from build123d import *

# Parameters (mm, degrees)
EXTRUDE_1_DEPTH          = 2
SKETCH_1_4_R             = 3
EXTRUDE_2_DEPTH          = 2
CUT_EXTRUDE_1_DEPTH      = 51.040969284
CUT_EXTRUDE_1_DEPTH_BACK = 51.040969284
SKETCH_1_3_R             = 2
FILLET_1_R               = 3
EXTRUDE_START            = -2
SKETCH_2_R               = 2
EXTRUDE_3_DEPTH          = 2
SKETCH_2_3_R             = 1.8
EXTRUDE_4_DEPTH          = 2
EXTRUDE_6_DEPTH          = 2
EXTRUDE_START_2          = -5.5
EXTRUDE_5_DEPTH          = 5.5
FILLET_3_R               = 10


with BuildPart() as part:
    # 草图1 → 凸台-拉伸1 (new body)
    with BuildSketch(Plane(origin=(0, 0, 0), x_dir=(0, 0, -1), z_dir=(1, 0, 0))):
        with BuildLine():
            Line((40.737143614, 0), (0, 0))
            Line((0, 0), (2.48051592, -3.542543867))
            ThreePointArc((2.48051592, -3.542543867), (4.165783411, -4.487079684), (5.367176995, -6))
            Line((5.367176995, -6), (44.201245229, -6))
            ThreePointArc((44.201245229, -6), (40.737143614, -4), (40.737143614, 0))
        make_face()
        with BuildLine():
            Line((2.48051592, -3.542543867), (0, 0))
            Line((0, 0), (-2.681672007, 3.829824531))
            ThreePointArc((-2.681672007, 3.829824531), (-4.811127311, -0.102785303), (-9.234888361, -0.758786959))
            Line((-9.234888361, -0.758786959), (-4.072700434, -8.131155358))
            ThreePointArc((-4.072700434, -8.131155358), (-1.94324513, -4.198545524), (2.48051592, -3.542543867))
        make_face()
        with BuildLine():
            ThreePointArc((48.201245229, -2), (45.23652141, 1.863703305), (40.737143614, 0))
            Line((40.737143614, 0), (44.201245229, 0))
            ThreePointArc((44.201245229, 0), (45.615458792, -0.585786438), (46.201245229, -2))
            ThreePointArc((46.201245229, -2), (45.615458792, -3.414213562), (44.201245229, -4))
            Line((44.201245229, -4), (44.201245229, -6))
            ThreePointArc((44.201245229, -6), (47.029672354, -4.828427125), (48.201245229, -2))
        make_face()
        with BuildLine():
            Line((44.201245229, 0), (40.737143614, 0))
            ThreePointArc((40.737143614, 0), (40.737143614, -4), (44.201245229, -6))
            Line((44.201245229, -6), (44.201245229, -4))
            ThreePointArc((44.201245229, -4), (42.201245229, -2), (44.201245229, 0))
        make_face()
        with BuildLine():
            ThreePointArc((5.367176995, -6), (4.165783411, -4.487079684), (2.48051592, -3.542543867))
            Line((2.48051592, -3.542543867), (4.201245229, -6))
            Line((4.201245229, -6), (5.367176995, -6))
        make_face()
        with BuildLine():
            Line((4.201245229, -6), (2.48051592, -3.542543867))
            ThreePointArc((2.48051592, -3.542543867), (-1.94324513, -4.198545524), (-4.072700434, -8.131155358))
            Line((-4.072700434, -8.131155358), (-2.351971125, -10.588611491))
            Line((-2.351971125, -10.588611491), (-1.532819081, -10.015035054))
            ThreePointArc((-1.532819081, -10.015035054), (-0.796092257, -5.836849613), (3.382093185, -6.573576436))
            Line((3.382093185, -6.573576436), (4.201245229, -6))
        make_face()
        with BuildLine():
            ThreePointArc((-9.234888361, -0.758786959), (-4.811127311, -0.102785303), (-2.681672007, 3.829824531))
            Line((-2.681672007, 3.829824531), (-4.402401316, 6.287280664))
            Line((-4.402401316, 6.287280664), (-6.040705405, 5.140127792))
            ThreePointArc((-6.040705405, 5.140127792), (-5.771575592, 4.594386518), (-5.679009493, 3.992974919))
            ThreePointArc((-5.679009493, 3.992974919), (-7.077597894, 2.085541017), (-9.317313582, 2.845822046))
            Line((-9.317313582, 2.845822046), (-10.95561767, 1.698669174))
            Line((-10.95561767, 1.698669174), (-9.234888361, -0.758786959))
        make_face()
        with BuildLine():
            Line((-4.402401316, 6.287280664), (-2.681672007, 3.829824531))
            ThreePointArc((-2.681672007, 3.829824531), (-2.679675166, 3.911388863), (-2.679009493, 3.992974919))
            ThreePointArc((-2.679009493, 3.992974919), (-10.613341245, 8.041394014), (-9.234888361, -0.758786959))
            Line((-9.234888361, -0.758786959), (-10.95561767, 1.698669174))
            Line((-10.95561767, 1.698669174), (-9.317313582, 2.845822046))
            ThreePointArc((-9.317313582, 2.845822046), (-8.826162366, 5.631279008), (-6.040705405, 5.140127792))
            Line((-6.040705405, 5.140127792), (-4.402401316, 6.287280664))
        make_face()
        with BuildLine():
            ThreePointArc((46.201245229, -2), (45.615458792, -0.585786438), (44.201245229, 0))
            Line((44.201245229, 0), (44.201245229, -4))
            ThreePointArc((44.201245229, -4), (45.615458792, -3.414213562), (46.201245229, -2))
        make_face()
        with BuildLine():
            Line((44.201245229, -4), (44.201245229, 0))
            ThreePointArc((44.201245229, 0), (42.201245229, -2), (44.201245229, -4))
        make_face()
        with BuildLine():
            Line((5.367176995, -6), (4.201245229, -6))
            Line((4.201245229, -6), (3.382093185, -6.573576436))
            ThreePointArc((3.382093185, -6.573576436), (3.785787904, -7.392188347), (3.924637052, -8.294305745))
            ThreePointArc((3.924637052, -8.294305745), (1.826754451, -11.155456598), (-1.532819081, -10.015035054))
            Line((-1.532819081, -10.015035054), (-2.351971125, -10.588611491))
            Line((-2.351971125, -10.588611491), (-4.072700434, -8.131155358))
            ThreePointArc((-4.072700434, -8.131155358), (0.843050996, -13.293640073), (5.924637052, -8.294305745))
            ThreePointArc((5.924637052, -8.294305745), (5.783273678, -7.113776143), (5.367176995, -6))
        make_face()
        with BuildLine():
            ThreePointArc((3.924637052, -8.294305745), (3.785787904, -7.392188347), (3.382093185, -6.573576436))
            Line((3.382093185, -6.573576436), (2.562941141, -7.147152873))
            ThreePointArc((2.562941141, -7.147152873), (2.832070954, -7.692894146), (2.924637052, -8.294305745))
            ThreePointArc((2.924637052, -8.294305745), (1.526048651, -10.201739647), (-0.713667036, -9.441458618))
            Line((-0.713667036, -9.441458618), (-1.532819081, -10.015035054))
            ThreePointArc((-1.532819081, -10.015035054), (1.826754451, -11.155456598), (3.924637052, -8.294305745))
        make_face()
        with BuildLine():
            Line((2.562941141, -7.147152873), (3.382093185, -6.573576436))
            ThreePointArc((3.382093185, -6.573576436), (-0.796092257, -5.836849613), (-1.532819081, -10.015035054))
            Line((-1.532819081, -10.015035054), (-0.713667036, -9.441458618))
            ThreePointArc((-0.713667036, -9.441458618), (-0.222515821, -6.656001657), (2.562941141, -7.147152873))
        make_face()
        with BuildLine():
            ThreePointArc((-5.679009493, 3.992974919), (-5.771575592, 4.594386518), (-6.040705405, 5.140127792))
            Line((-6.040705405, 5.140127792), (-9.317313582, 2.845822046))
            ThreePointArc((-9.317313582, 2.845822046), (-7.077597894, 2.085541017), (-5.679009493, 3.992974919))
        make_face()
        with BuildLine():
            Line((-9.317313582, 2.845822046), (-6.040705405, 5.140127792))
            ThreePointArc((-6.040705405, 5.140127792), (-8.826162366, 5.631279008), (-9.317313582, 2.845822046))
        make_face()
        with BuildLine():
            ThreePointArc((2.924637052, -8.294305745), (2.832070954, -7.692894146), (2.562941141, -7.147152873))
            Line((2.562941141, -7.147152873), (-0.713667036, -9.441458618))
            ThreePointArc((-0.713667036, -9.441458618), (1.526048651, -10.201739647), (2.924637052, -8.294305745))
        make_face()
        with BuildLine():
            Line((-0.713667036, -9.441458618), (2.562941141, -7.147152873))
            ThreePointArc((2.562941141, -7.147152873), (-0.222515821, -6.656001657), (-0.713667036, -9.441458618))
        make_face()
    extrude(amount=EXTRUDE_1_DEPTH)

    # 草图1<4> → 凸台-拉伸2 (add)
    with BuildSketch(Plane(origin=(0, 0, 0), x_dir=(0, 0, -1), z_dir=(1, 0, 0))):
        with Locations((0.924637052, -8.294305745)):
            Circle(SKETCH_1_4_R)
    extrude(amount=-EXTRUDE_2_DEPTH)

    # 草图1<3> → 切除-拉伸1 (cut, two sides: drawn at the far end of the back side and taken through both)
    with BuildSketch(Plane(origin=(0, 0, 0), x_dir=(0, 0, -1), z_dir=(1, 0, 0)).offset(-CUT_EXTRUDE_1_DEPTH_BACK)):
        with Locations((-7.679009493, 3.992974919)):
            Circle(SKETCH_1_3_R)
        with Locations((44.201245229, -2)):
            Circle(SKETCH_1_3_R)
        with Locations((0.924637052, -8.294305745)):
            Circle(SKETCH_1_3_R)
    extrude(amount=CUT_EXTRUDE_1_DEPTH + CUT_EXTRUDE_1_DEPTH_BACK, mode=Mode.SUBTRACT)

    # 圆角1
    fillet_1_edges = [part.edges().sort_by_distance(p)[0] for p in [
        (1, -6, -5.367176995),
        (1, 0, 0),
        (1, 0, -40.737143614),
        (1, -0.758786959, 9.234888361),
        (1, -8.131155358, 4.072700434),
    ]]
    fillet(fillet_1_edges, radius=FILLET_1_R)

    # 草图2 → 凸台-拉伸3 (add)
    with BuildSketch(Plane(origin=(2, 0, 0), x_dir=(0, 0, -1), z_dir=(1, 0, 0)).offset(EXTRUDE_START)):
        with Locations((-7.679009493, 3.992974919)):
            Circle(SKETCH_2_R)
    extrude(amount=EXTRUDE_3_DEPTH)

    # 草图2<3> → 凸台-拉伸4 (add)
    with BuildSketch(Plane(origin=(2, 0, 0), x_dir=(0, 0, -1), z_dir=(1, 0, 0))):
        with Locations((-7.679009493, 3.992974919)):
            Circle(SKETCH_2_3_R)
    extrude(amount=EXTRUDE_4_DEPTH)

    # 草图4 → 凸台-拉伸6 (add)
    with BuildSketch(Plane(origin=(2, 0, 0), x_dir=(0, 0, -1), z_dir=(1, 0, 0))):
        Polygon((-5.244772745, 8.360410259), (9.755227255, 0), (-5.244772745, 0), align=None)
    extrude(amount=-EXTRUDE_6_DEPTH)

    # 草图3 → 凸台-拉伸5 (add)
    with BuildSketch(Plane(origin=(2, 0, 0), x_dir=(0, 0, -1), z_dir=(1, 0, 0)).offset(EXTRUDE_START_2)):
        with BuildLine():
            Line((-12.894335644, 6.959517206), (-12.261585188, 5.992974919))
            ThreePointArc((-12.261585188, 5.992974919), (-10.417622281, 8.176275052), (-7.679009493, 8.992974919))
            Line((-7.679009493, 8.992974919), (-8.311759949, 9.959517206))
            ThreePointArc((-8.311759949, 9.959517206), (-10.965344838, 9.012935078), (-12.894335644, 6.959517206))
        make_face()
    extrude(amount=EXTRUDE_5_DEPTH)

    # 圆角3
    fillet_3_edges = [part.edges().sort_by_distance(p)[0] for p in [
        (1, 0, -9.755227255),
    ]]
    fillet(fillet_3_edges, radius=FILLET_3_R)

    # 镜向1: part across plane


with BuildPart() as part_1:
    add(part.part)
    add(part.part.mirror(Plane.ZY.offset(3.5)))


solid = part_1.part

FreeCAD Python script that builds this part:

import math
import FreeCAD as App
import Part
import Sketcher
Q = App.Units.Quantity


def edges_at(feature, points):
    """Names of the edges that pass closest to the given points."""
    edges = feature.Shape.Edges
    near = lambda p: min(range(len(edges)), key=lambda i: edges[i].distToShape(Part.Vertex(*p))[0])
    return sorted({f"Edge{near(p) + 1}" for p in points})

doc = App.newDocument("Part")
body = doc.addObject("PartDesign::Body", "Body")

# Sketch on YZ plane
sketch1 = body.newObject("Sketcher::SketchObject", "Sketch")
sketch1.AttachmentSupport = (doc.getObject("YZ_Plane"), [""])
sketch1.MapMode = "FlatFace"
sketch1.addGeometry(Part.LineSegment(App.Vector(0, -40.74, 0), App.Vector(0, 0, 0)), False)
sketch1.addGeometry(Part.LineSegment(App.Vector(0, 0, 0), App.Vector(3.83, 2.68, 0)), False)
sketch1.addGeometry(Part.ArcOfCircle(Part.Circle(App.Vector(3.99, 7.68, 0), App.Vector(0, 0, 1), 5), math.radians(-91.87), math.radians(-90)), False)
sketch1.addGeometry(Part.ArcOfCircle(Part.Circle(App.Vector(3.99, 7.68, 0), App.Vector(0, 0, 1), 5), math.radians(-90), math.radians(162)), False)
sketch1.addGeometry(Part.LineSegment(App.Vector(-0.76, 9.23, 0), App.Vector(-8.13, 4.07, 0)), False)
sketch1.addGeometry(Part.ArcOfCircle(Part.Circle(App.Vector(-8.29, -0.92, 0), App.Vector(0, 0, 1), 5), math.radians(88), math.radians(270)), False)
sketch1.addGeometry(Part.ArcOfCircle(Part.Circle(App.Vector(-8.29, -0.92, 0), App.Vector(0, 0, 1), 5), math.radians(-90), math.radians(-63)), False)
sketch1.addGeometry(Part.LineSegment(App.Vector(-6, -5.37, 0), App.Vector(-6, -44.2, 0)), False)
sketch1.addGeometry(Part.ArcOfCircle(Part.Circle(App.Vector(-2, -44.2, 0), App.Vector(0, 0, 1), 4), math.radians(180), math.radians(270)), False)
sketch1.addGeometry(Part.ArcOfCircle(Part.Circle(App.Vector(-2, -44.2, 0), App.Vector(0, 0, 1), 4), math.radians(-90), math.radians(60)), False)
sketch1.addConstraint(Sketcher.Constraint("Coincident", 0, 2, 1, 1))
sketch1.addConstraint(Sketcher.Constraint("Coincident", 1, 2, 2, 1))
sketch1.addConstraint(Sketcher.Constraint("Tangent", 2, 2, 3, 1))
sketch1.addConstraint(Sketcher.Constraint("Coincident", 3, 2, 4, 1))
sketch1.addConstraint(Sketcher.Constraint("Coincident", 4, 2, 5, 1))
sketch1.addConstraint(Sketcher.Constraint("Tangent", 5, 2, 6, 1))
sketch1.addConstraint(Sketcher.Constraint("Coincident", 6, 2, 7, 1))
sketch1.addConstraint(Sketcher.Constraint("Tangent", 7, 2, 8, 1))
sketch1.addConstraint(Sketcher.Constraint("Tangent", 8, 2, 9, 1))
sketch1.addConstraint(Sketcher.Constraint("Coincident", 9, 2, 0, 1))
sketch1.addConstraint(Sketcher.Constraint("Vertical", 0))
sketch1.addConstraint(Sketcher.Constraint("Vertical", 7))
sketch1.addConstraint(Sketcher.Constraint("Coincident", 0, 2, -1, 1))
sketch1.addConstraint(Sketcher.Constraint("Equal", 2, 3))
sketch1.addConstraint(Sketcher.Constraint("Equal", 3, 5))
sketch1.addConstraint(Sketcher.Constraint("Equal", 5, 6))
sketch1.addConstraint(Sketcher.Constraint("Equal", 8, 9))
sketch1.addConstraint(Sketcher.Constraint("Parallel", 1, 4))
sketch1.addConstraint(Sketcher.Constraint("Vertical", 3, 3, 2, 2))
sketch1.addConstraint(Sketcher.Constraint("Vertical", 6, 3, 5, 2))
sketch1.addConstraint(Sketcher.Constraint("Vertical", 9, 3, 8, 2))
sketch1.addConstraint(Sketcher.Constraint("Radius", 2, 5.000001))
sketch1.addConstraint(Sketcher.Constraint("Radius", 8, 4.0))
sketch1.addConstraint(Sketcher.Constraint("Angle", 1, Q("35 deg")))
sketch1.addConstraint(Sketcher.Constraint("Distance", 4, 9.0))
sketch1.addConstraint(Sketcher.Constraint("DistanceX", 8, 3, -1, 1, 2.0))
sketch1.addConstraint(Sketcher.Constraint("DistanceY", 7, 2, 7, 1, 38.834068))
sketch1.addConstraint(Sketcher.Constraint("DistanceY", -1, 1, 4, 2, 4.0727))
sketch1.addConstraint(Sketcher.Constraint("DistanceY", 0, 1, 0, 2, 40.737144))
sketch1.addConstraint(Sketcher.Constraint("DistanceY", -1, 1, 2, 3, 7.679011))
sketch1.addConstraint(Sketcher.Constraint("DistanceX", 5, 3, 3, 3, 12.287281))
pad1 = body.newObject("PartDesign::Pad", "Pad")
pad1.Profile = sketch1
pad1.Length = 2

# Sketch on YZ plane
sketch2 = body.newObject("Sketcher::SketchObject", "Sketch001")
sketch2.AttachmentSupport = (doc.getObject("YZ_Plane"), [""])
sketch2.MapMode = "FlatFace"
sketch2.addGeometry(Part.Circle(App.Vector(-8.3, -0.9, 0), App.Vector(0, 0, 1), 3), False)
sketch2.addConstraint(Sketcher.Constraint("Diameter", 0, 6.0))
sketch2.addConstraint(Sketcher.Constraint("DistanceX", 0, 3, -1, 1, 8.294306))
sketch2.addConstraint(Sketcher.Constraint("DistanceY", 0, 3, -1, 1, 0.924637))
pad2 = body.newObject("PartDesign::Pad", "Pad001")
pad2.Profile = sketch2
pad2.Length = 2
pad2.Reversed = True

# Sketch on YZ plane
sketch3 = body.newObject("Sketcher::SketchObject", "Sketch002")
sketch3.AttachmentSupport = (doc.getObject("YZ_Plane"), [""])
sketch3.MapMode = "FlatFace"
sketch3.addGeometry(Part.Circle(App.Vector(4, 7.7, 0), App.Vector(0, 0, 1), 2), False)
sketch3.addGeometry(Part.Circle(App.Vector(-2, -44.2, 0), App.Vector(0, 0, 1), 2), False)
sketch3.addGeometry(Part.Circle(App.Vector(-8.3, -0.9, 0), App.Vector(0, 0, 1), 2), False)
sketch3.addConstraint(Sketcher.Constraint("Equal", 0, 1))
sketch3.addConstraint(Sketcher.Constraint("Equal", 1, 2))
sketch3.addConstraint(Sketcher.Constraint("Diameter", 0, 4.0))
sketch3.addConstraint(Sketcher.Constraint("DistanceX", 1, 3, -1, 1, 2.0))
sketch3.addConstraint(Sketcher.Constraint("DistanceY", -1, 1, 0, 3, 7.679009))
sketch3.addConstraint(Sketcher.Constraint("DistanceX", 2, 3, 0, 3, 12.287281))
sketch3.addConstraint(Sketcher.Constraint("DistanceY", 1, 3, 2, 3, 43.276608))
sketch3.addConstraint(Sketcher.Constraint("DistanceX", -1, 1, 0, 3, 3.992975))
sketch3.addConstraint(Sketcher.Constraint("DistanceY", 1, 3, -1, 1, 44.201245))
pocket1 = body.newObject("PartDesign::Pocket", "Pocket")
pocket1.Profile = sketch3
pocket1.Type = "ThroughAll"
pocket1.Midplane = True
doc.recompute()

fillet = body.newObject("PartDesign::Fillet", "Fillet")
fillet.Base = (pocket1, edges_at(pocket1, [
    (1, -6, -5.367),
    (1, 0, 0),
    (1, 0, -40.737),
    (1, -0.759, 9.235),
    (1, -8.131, 4.073),
]))
fillet.Radius = 3

# Sketch on YZ plane
sketch4 = body.newObject("Sketcher::SketchObject", "Sketch003")
sketch4.AttachmentSupport = (doc.getObject("YZ_Plane"), [""])
sketch4.MapMode = "FlatFace"
sketch4.addGeometry(Part.Circle(App.Vector(4, 7.7, 0), App.Vector(0, 0, 1), 2), False)
sketch4.addConstraint(Sketcher.Constraint("Diameter", 0, 4.0))
sketch4.addConstraint(Sketcher.Constraint("DistanceY", -1, 1, 0, 3, 7.679009))
sketch4.addConstraint(Sketcher.Constraint("DistanceX", -1, 1, 0, 3, 3.992975))
pad3 = body.newObject("PartDesign::Pad", "Pad002")
pad3.Profile = sketch4
pad3.Length = 2

# Sketch on YZ plane
sketch5 = body.newObject("Sketcher::SketchObject", "Sketch004")
sketch5.AttachmentSupport = (doc.getObject("YZ_Plane"), [""])
sketch5.MapMode = "FlatFace"
sketch5.AttachmentOffset = App.Placement(App.Vector(0, 0, 2), App.Rotation())
sketch5.addGeometry(Part.Circle(App.Vector(4, 7.7, 0), App.Vector(0, 0, 1), 1.8), False)
sketch5.addConstraint(Sketcher.Constraint("Diameter", 0, 3.6))
sketch5.addConstraint(Sketcher.Constraint("DistanceY", -1, 1, 0, 3, 7.679009))
sketch5.addConstraint(Sketcher.Constraint("DistanceX", -1, 1, 0, 3, 3.992975))
pad4 = body.newObject("PartDesign::Pad", "Pad003")
pad4.Profile = sketch5
pad4.Length = 2

# Sketch on YZ plane
sketch6 = body.newObject("Sketcher::SketchObject", "Sketch005")
sketch6.AttachmentSupport = (doc.getObject("YZ_Plane"), [""])
sketch6.MapMode = "FlatFace"
sketch6.AttachmentOffset = App.Placement(App.Vector(0, 0, 2), App.Rotation())
sketch6.addGeometry(Part.LineSegment(App.Vector(0, -10, 0), App.Vector(8, 5, 0)), False)
sketch6.addGeometry(Part.LineSegment(App.Vector(8, 5, 0), App.Vector(0, 5, 0)), False)
sketch6.addGeometry(Part.LineSegment(App.Vector(0, 5, 0), App.Vector(0, -10, 0)), False)
sketch6.addConstraint(Sketcher.Constraint("Coincident", 0, 2, 1, 1))
sketch6.addConstraint(Sketcher.Constraint("Coincident", 1, 2, 2, 1))
sketch6.addConstraint(Sketcher.Constraint("Coincident", 2, 2, 0, 1))
sketch6.addConstraint(Sketcher.Constraint("Horizontal", 1))
sketch6.addConstraint(Sketcher.Constraint("Vertical", 2))
sketch6.addConstraint(Sketcher.Constraint("PointOnObject", 1, 2, -2))
sketch6.addConstraint(Sketcher.Constraint("DistanceY", 2, 2, 2, 1, 15.0))
sketch6.addConstraint(Sketcher.Constraint("DistanceX", 1, 2, 1, 1, 8.36041))
sketch6.addConstraint(Sketcher.Constraint("DistanceY", -1, 1, 0, 2, 5.244773))
pad5 = body.newObject("PartDesign::Pad", "Pad004")
pad5.Profile = sketch6
pad5.Length = 2
pad5.Reversed = True

# Sketch on YZ plane
sketch7 = body.newObject("Sketcher::SketchObject", "Sketch006")
sketch7.AttachmentSupport = (doc.getObject("YZ_Plane"), [""])
sketch7.MapMode = "FlatFace"
sketch7.AttachmentOffset = App.Placement(App.Vector(0, 0, -3.5), App.Rotation())
sketch7.addGeometry(Part.LineSegment(App.Vector(7, 12.9, 0), App.Vector(6, 12.3, 0)), False)
sketch7.addGeometry(Part.ArcOfCircle(Part.Circle(App.Vector(4, 7.7, 0), App.Vector(0, 0, 1), 5), math.radians(0), math.radians(66)), False)
sketch7.addGeometry(Part.LineSegment(App.Vector(9, 7.7, 0), App.Vector(10, 8.3, 0)), False)
sketch7.addGeometry(Part.ArcOfCircle(Part.Circle(App.Vector(4, 7.7, 0), App.Vector(0, 0, 1), 6), math.radians(6), math.radians(60)), False)
sketch7.addConstraint(Sketcher.Constraint("Coincident", 0, 2, 1, 2))
sketch7.addConstraint(Sketcher.Constraint("Coincident", 1, 1, 2, 1))
sketch7.addConstraint(Sketcher.Constraint("Coincident", 2, 2, 3, 1))
sketch7.addConstraint(Sketcher.Constraint("Coincident", 3, 2, 0, 1))
sketch7.addConstraint(Sketcher.Constraint("Coincident", 3, 3, 1, 3))
sketch7.addConstraint(Sketcher.Constraint("Parallel", 0, 2))
sketch7.addConstraint(Sketcher.Constraint("Horizontal", 3, 3, 1, 1))
sketch7.addConstraint(Sketcher.Constraint("Equal", 0, 2))
sketch7.addConstraint(Sketcher.Constraint("Radius", 1, 5.0))
sketch7.addConstraint(Sketcher.Constraint("Radius", 3, 6.0))
sketch7.addConstraint(Sketcher.Constraint("DistanceX", 1, 3, 0, 2, 2.0))
sketch7.addConstraint(Sketcher.Constraint("DistanceY", -1, 1, 1, 3, 7.679009))
sketch7.addConstraint(Sketcher.Constraint("DistanceX", -1, 1, 1, 3, 3.992975))
pad6 = body.newObject("PartDesign::Pad", "Pad005")
pad6.Profile = sketch7
pad6.Length = 5.5
doc.recompute()

fillet2 = body.newObject("PartDesign::Fillet", "Fillet001")
fillet2.Base = (pad6, edges_at(pad6, [(1, 0, -9.755)]))
fillet2.Radius = 10
body2 = doc.addObject("PartDesign::Body", "Body001")
doc.recompute()

body2.BaseFeature = body
doc.recompute()

mirroring = doc.addObject("Part::Mirroring", "Mirroring")
mirroring.Source = body
mirroring.Base = App.Vector(-3.5, 0, 0)
mirroring.Normal = App.Vector(-1, 0, 0)
body3 = doc.addObject("PartDesign::Body", "Body002")
body3.BaseFeature = mirroring
boolean = body2.newObject("PartDesign::Boolean", "Boolean")
boolean.Type = "Fuse"
boolean.addObjects([body3])
doc.recompute()
mirroring.Visibility = False

doc.recompute()
